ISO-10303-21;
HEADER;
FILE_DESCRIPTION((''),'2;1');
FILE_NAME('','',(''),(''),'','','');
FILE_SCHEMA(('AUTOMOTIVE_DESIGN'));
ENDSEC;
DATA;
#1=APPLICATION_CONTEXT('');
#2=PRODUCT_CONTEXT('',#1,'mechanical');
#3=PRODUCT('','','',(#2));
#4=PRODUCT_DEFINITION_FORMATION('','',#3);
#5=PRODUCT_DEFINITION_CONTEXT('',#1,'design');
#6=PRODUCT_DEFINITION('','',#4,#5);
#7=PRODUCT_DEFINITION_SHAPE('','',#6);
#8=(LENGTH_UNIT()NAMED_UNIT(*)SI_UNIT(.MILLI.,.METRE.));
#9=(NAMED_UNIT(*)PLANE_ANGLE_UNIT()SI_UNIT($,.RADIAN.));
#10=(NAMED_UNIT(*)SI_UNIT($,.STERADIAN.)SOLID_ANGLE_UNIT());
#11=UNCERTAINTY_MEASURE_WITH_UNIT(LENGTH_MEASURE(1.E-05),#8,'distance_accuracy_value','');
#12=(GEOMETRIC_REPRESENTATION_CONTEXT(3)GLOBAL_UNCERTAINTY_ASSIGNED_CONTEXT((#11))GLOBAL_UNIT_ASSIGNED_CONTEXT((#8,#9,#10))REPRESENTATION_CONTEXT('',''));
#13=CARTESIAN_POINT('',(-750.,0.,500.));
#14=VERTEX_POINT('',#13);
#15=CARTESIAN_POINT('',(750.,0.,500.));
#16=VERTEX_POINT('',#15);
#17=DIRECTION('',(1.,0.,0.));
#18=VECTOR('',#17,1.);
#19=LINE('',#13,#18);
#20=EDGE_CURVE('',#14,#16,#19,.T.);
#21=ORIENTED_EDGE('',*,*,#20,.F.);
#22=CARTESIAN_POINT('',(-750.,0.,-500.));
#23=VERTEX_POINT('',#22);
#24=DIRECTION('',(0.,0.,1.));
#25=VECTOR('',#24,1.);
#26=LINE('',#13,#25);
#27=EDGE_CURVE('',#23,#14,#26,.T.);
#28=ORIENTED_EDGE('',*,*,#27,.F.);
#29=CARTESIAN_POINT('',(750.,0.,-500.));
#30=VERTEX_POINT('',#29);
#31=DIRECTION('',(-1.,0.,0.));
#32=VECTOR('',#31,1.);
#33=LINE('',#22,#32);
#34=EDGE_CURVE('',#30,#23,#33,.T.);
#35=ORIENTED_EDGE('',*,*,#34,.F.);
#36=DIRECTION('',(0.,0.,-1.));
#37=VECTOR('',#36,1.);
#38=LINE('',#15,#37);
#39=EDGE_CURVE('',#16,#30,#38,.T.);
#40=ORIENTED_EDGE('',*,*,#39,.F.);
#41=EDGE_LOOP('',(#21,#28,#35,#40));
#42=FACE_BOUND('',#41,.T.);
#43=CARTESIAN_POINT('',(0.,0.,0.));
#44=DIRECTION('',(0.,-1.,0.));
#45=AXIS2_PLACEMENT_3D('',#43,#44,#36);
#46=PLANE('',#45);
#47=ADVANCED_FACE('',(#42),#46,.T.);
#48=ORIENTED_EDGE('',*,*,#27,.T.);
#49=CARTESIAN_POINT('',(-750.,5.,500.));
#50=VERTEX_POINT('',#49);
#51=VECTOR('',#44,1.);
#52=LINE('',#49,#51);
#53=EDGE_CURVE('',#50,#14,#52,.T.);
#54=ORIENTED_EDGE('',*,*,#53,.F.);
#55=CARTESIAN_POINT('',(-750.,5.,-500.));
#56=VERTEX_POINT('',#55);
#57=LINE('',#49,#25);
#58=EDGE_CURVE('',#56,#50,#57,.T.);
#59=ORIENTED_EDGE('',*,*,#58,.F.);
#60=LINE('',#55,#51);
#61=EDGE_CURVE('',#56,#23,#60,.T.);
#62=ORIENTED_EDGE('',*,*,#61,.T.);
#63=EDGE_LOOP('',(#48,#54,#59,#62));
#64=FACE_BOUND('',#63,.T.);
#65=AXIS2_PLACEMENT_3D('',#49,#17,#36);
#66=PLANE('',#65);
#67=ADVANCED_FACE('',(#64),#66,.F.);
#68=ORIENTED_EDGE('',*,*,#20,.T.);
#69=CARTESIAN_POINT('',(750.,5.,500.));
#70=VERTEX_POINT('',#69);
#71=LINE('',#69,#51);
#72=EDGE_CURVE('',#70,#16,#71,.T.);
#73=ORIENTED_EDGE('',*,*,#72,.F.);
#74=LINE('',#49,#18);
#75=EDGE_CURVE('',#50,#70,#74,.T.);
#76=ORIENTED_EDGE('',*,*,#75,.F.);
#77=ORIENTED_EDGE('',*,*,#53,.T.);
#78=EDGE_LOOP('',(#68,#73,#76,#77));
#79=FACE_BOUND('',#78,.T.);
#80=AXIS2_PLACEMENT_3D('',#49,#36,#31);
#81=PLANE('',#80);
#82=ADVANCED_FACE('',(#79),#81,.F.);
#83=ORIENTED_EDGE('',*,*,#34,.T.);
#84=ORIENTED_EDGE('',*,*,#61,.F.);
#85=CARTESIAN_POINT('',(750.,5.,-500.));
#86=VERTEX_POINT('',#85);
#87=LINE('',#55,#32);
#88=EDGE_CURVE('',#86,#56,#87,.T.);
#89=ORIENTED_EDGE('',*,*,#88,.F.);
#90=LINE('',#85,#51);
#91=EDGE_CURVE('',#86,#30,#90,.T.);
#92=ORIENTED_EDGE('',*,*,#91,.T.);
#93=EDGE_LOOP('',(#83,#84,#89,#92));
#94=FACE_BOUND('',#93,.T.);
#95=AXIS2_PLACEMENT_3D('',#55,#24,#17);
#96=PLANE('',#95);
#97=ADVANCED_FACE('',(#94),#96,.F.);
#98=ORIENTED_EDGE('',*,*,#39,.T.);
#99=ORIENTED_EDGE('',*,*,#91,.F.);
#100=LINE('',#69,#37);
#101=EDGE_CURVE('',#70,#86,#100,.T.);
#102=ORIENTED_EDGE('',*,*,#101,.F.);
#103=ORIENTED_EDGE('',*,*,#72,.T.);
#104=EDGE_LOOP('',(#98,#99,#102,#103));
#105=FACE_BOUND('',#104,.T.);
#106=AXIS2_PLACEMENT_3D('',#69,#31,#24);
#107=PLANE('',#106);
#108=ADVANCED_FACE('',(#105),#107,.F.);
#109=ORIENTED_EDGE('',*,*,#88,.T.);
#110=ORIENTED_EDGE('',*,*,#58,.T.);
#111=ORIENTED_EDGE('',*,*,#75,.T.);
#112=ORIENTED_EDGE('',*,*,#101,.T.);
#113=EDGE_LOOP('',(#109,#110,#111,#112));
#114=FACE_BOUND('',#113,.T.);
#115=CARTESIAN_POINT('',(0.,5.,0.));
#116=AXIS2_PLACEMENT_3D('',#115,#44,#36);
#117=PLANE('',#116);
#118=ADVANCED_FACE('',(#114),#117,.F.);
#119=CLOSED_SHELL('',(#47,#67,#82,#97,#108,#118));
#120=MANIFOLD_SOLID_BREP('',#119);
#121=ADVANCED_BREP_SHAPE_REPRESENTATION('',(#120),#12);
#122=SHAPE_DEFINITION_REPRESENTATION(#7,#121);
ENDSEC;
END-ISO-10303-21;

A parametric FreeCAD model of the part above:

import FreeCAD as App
import Part
import Sketcher

V = App.Vector
Q = App.Units.Quantity

doc = App.newDocument("Part")
body = doc.addObject("PartDesign::Body", "Body")

# Sketch on XZ plane
sketch1 = doc.addObject("Sketcher::SketchObject", "Sketch")
body.addObject(sketch1)
sketch1.AttachmentSupport = (doc.XZ_Plane, [""])
sketch1.MapMode = "FlatFace"
sketch1.addGeometry([
    Part.LineSegment(V(-750, -500, 0), V(-750, 500, 0)),
    Part.LineSegment(V(-750, 500, 0), V(750, 500, 0)),
    Part.LineSegment(V(750, 500, 0), V(750, -500, 0)),
    Part.LineSegment(V(750, -500, 0), V(-750, -500, 0)),
], False)
sketch1.addConstraint([
    Sketcher.Constraint("Coincident", 0, 2, 1, 1),
    Sketcher.Constraint("Coincident", 1, 2, 2, 1),
    Sketcher.Constraint("Coincident", 2, 2, 3, 1),
    Sketcher.Constraint("Coincident", 3, 2, 0, 1),
    Sketcher.Constraint("Vertical", 0),
    Sketcher.Constraint("Horizontal", 1),
    Sketcher.Constraint("Vertical", 2),
    Sketcher.Constraint("Horizontal", 3),
    Sketcher.Constraint("Symmetric", 0, 2, 2, 2, -1, 1),
    Sketcher.Constraint("DistanceX", 1, 1, 1, 2, Q("1500 mm")),
    Sketcher.Constraint("DistanceY", 0, 1, 0, 2, Q("1000 mm")),
])
pad1 = doc.addObject("PartDesign::Pad", "Pad")
body.addObject(pad1)
pad1.Profile = sketch1
pad1.Length = 5
pad1.Reversed = True

doc.recompute()
